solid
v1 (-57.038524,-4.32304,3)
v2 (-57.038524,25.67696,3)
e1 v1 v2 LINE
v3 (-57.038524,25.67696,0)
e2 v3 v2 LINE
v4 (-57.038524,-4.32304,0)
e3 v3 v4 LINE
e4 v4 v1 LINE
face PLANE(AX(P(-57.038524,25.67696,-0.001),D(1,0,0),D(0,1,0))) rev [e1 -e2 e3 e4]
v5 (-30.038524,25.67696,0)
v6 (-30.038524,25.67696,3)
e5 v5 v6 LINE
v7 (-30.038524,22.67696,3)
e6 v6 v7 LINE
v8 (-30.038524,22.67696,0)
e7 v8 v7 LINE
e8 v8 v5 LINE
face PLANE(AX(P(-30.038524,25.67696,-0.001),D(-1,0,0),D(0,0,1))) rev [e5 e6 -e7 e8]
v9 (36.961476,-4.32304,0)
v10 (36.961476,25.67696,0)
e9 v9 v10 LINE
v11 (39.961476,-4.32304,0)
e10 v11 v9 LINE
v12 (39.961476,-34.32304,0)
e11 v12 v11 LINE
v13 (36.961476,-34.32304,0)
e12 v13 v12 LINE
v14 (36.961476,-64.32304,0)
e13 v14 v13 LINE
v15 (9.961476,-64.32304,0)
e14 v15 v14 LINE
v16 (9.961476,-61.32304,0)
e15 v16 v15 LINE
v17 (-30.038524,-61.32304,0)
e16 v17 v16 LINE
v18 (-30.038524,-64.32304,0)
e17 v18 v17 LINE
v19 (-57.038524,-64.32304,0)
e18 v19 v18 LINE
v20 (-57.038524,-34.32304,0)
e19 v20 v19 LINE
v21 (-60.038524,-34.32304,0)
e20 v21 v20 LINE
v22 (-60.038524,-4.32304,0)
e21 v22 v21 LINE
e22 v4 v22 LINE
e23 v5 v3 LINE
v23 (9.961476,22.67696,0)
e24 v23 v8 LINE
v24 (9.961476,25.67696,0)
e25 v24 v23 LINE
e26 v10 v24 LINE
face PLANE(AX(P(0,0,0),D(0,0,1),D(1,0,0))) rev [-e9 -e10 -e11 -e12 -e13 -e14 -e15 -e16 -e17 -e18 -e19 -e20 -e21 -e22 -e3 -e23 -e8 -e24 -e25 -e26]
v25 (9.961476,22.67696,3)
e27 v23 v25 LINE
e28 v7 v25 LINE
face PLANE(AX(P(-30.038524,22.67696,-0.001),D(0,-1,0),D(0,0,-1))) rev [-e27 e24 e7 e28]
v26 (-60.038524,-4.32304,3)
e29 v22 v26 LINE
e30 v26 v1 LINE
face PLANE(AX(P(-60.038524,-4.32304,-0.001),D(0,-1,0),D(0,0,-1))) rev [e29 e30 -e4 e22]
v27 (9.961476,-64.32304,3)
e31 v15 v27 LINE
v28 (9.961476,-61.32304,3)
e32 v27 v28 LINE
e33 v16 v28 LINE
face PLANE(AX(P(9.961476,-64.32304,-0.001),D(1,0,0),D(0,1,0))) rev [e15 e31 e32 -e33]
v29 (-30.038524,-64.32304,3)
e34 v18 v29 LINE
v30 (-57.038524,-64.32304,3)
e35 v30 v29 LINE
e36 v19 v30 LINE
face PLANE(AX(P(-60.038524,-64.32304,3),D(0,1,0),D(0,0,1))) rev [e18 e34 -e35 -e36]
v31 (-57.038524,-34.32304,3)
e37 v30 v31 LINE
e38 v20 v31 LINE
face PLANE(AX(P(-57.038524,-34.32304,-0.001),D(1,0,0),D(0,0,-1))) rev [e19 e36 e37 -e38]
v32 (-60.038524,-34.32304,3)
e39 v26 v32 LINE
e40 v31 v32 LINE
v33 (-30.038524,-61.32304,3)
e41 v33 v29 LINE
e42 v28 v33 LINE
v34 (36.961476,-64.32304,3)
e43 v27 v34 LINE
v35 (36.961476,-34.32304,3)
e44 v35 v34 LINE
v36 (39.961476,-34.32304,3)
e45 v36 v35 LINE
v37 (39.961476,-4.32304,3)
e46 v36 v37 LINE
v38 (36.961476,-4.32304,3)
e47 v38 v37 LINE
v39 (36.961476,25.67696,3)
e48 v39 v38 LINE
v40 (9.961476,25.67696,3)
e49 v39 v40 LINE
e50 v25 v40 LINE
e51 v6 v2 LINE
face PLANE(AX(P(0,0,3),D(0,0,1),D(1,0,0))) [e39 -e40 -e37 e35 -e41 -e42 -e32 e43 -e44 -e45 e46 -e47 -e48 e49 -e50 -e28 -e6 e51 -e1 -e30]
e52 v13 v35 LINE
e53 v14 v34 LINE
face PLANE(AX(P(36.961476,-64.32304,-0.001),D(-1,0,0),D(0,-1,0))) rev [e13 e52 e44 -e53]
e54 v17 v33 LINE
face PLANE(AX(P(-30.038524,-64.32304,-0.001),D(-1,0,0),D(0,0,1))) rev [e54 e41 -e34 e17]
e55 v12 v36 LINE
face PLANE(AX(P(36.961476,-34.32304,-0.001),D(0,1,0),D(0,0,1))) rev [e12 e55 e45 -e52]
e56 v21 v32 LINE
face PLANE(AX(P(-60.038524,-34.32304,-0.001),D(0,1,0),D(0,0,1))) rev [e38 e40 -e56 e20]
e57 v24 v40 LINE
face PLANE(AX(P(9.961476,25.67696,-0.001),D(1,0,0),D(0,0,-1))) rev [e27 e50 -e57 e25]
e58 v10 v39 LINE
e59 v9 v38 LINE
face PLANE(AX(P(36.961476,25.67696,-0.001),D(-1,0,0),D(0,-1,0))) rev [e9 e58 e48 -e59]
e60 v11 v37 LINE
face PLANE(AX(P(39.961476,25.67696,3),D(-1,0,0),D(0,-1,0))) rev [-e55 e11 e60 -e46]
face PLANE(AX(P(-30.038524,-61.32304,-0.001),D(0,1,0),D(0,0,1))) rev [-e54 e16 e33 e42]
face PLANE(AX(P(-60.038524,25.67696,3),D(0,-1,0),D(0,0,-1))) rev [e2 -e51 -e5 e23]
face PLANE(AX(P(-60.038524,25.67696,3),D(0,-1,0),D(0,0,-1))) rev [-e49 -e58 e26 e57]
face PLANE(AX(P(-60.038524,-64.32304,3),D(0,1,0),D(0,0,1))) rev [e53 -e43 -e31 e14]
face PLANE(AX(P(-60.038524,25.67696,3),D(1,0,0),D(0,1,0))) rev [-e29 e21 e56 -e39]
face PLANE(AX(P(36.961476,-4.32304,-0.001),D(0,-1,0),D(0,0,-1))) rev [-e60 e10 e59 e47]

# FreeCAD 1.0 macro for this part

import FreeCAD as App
import Part
import Sketcher

doc = App.newDocument("Part")
body = doc.addObject("PartDesign::Body", "Body")

# Sketch on XY plane
sketch1 = doc.addObject("Sketcher::SketchObject", "Sketch")
body.addObject(sketch1)
sketch1.AttachmentSupport = (doc.XY_Plane, [""])
sketch1.MapMode = "FlatFace"
sketch1.addGeometry([
    Part.LineSegment(App.Vector(-60, 26, 0), App.Vector(-60, -64, 0)),
    Part.LineSegment(App.Vector(-60, -64, 0), App.Vector(40, -64, 0)),
    Part.LineSegment(App.Vector(40, -64, 0), App.Vector(40, 26, 0)),
    Part.LineSegment(App.Vector(40, 26, 0), App.Vector(-60, 26, 0)),
], False)
sketch1.addConstraint([
    Sketcher.Constraint("Coincident", 0, 2, 1, 1),
    Sketcher.Constraint("Coincident", 1, 2, 2, 1),
    Sketcher.Constraint("Coincident", 2, 2, 3, 1),
    Sketcher.Constraint("Coincident", 3, 2, 0, 1),
    Sketcher.Constraint("Vertical", 0),
    Sketcher.Constraint("Horizontal", 1),
    Sketcher.Constraint("Vertical", 2),
    Sketcher.Constraint("Horizontal", 3),
    Sketcher.Constraint("DistanceX", 1, 1, 1, 2, 100.0),
    Sketcher.Constraint("DistanceY", 0, 2, 0, 1, 90.0),
    Sketcher.Constraint("DistanceY", 0, 2, -1, 1, 64.32304),
    Sketcher.Constraint("DistanceX", 0, 2, -1, 1, 60.038524),
])
pad1 = doc.addObject("PartDesign::Pad", "Pad")
body.addObject(pad1)
pad1.Profile = sketch1
pad1.Length = 3

# Sketch on XY plane
sketch2 = doc.addObject("Sketcher::SketchObject", "Sketch001")
body.addObject(sketch2)
sketch2.AttachmentSupport = (doc.XY_Plane, [""])
sketch2.MapMode = "FlatFace"
sketch2.AttachmentOffset = App.Placement(App.Vector(0, 0, 3), App.Rotation())
sketch2.addGeometry([
    Part.LineSegment(App.Vector(-30, 25.7, 0), App.Vector(-30, 22.7, 0)),
    Part.LineSegment(App.Vector(-30, 22.7, 0), App.Vector(10, 22.7, 0)),
    Part.LineSegment(App.Vector(10, 22.7, 0), App.Vector(10, 25.7, 0)),
    Part.LineSegment(App.Vector(10, 25.7, 0), App.Vector(-30, 25.7, 0)),
], False)
sketch2.addConstraint([
    Sketcher.Constraint("Coincident", 0, 2, 1, 1),
    Sketcher.Constraint("Coincident", 1, 2, 2, 1),
    Sketcher.Constraint("Coincident", 2, 2, 3, 1),
    Sketcher.Constraint("Coincident", 3, 2, 0, 1),
    Sketcher.Constraint("Vertical", 0),
    Sketcher.Constraint("Horizontal", 1),
    Sketcher.Constraint("Vertical", 2),
    Sketcher.Constraint("Horizontal", 3),
    Sketcher.Constraint("DistanceX", 1, 1, 1, 2, 40.0),
    Sketcher.Constraint("DistanceY", 0, 2, 0, 1, 3.0),
    Sketcher.Constraint("DistanceY", -1, 1, 0, 2, 22.67696),
    Sketcher.Constraint("DistanceX", 0, 2, -1, 1, 30.038524),
])
pocket1 = doc.addObject("PartDesign::Pocket", "Pocket")
body.addObject(pocket1)
pocket1.Profile = sketch2
pocket1.Type = "UpToFirst"

# Sketch on XY plane
sketch3 = doc.addObject("Sketcher::SketchObject", "Sketch002")
body.addObject(sketch3)
sketch3.AttachmentSupport = (doc.XY_Plane, [""])
sketch3.MapMode = "FlatFace"
sketch3.AttachmentOffset = App.Placement(App.Vector(0, 0, 3), App.Rotation())
sketch3.addGeometry([
    Part.LineSegment(App.Vector(-60, 25.7, 0), App.Vector(-60, -4.3, 0)),
    Part.LineSegment(App.Vector(-60, -4.3, 0), App.Vector(-57, -4.3, 0)),
    Part.LineSegment(App.Vector(-57, -4.3, 0), App.Vector(-57, 25.7, 0)),
    Part.LineSegment(App.Vector(-57, 25.7, 0), App.Vector(-60, 25.7, 0)),
], False)
sketch3.addConstraint([
    Sketcher.Constraint("Coincident", 0, 2, 1, 1),
    Sketcher.Constraint("Coincident", 1, 2, 2, 1),
    Sketcher.Constraint("Coincident", 2, 2, 3, 1),
    Sketcher.Constraint("Coincident", 3, 2, 0, 1),
    Sketcher.Constraint("Vertical", 0),
    Sketcher.Constraint("Horizontal", 1),
    Sketcher.Constraint("Vertical", 2),
    Sketcher.Constraint("Horizontal", 3),
    Sketcher.Constraint("DistanceX", 1, 1, 1, 2, 3.0),
    Sketcher.Constraint("DistanceY", 0, 2, 0, 1, 30.0),
    Sketcher.Constraint("DistanceY", 0, 2, -1, 1, 4.32304),
    Sketcher.Constraint("DistanceX", 0, 2, -1, 1, 60.038524),
])
pocket2 = doc.addObject("PartDesign::Pocket", "Pocket001")
body.addObject(pocket2)
pocket2.Profile = sketch3
pocket2.Type = "UpToFirst"

# Sketch on XY plane
sketch4 = doc.addObject("Sketcher::SketchObject", "Sketch003")
body.addObject(sketch4)
sketch4.AttachmentSupport = (doc.XY_Plane, [""])
sketch4.MapMode = "FlatFace"
sketch4.AttachmentOffset = App.Placement(App.Vector(0, 0, 3), App.Rotation())
sketch4.addGeometry([
    Part.LineSegment(App.Vector(-60, -34.3, 0), App.Vector(-60, -64.3, 0)),
    Part.LineSegment(App.Vector(-60, -64.3, 0), App.Vector(-57, -64.3, 0)),
    Part.LineSegment(App.Vector(-57, -64.3, 0), App.Vector(-57, -34.3, 0)),
    Part.LineSegment(App.Vector(-57, -34.3, 0), App.Vector(-60, -34.3, 0)),
], False)
sketch4.addConstraint([
    Sketcher.Constraint("Coincident", 0, 2, 1, 1),
    Sketcher.Constraint("Coincident", 1, 2, 2, 1),
    Sketcher.Constraint("Coincident", 2, 2, 3, 1),
    Sketcher.Constraint("Coincident", 3, 2, 0, 1),
    Sketcher.Constraint("Vertical", 0),
    Sketcher.Constraint("Horizontal", 1),
    Sketcher.Constraint("Vertical", 2),
    Sketcher.Constraint("Horizontal", 3),
    Sketcher.Constraint("DistanceX", 1, 1, 1, 2, 3.0),
    Sketcher.Constraint("DistanceY", 0, 2, 0, 1, 30.0),
    Sketcher.Constraint("DistanceY", 0, 2, -1, 1, 64.32304),
    Sketcher.Constraint("DistanceX", 0, 2, -1, 1, 60.038524),
])
pocket3 = doc.addObject("PartDesign::Pocket", "Pocket002")
body.addObject(pocket3)
pocket3.Profile = sketch4
pocket3.Type = "UpToFirst"

# Sketch on XY plane
sketch5 = doc.addObject("Sketcher::SketchObject", "Sketch004")
body.addObject(sketch5)
sketch5.AttachmentSupport = (doc.XY_Plane, [""])
sketch5.MapMode = "FlatFace"
sketch5.AttachmentOffset = App.Placement(App.Vector(0, 0, 3), App.Rotation())
sketch5.addGeometry([
    Part.LineSegment(App.Vector(-30, -61.3, 0), App.Vector(-30, -64.3, 0)),
    Part.LineSegment(App.Vector(-30, -64.3, 0), App.Vector(10, -64.3, 0)),
    Part.LineSegment(App.Vector(10, -64.3, 0), App.Vector(10, -61.3, 0)),
    Part.LineSegment(App.Vector(10, -61.3, 0), App.Vector(-30, -61.3, 0)),
], False)
sketch5.addConstraint([
    Sketcher.Constraint("Coincident", 0, 2, 1, 1),
    Sketcher.Constraint("Coincident", 1, 2, 2, 1),
    Sketcher.Constraint("Coincident", 2, 2, 3, 1),
    Sketcher.Constraint("Coincident", 3, 2, 0, 1),
    Sketcher.Constraint("Vertical", 0),
    Sketcher.Constraint("Horizontal", 1),
    Sketcher.Constraint("Vertical", 2),
    Sketcher.Constraint("Horizontal", 3),
    Sketcher.Constraint("DistanceX", 1, 1, 1, 2, 40.0),
    Sketcher.Constraint("DistanceY", 0, 2, 0, 1, 3.0),
    Sketcher.Constraint("DistanceY", 0, 2, -1, 1, 64.32304),
    Sketcher.Constraint("DistanceX", 0, 2, -1, 1, 30.038524),
])
pocket4 = doc.addObject("PartDesign::Pocket", "Pocket003")
body.addObject(pocket4)
pocket4.Profile = sketch5
pocket4.Type = "UpToFirst"

# Sketch on XY plane
sketch6 = doc.addObject("Sketcher::SketchObject", "Sketch005")
body.addObject(sketch6)
sketch6.AttachmentSupport = (doc.XY_Plane, [""])
sketch6.MapMode = "FlatFace"
sketch6.AttachmentOffset = App.Placement(App.Vector(0, 0, 3), App.Rotation())
sketch6.addGeometry([
    Part.LineSegment(App.Vector(37, -34.3, 0), App.Vector(37, -64.3, 0)),
    Part.LineSegment(App.Vector(37, -64.3, 0), App.Vector(40, -64.3, 0)),
    Part.LineSegment(App.Vector(40, -64.3, 0), App.Vector(40, -34.3, 0)),
    Part.LineSegment(App.Vector(40, -34.3, 0), App.Vector(37, -34.3, 0)),
], False)
sketch6.addConstraint([
    Sketcher.Constraint("Coincident", 0, 2, 1, 1),
    Sketcher.Constraint("Coincident", 1, 2, 2, 1),
    Sketcher.Constraint("Coincident", 2, 2, 3, 1),
    Sketcher.Constraint("Coincident", 3, 2, 0, 1),
    Sketcher.Constraint("Vertical", 0),
    Sketcher.Constraint("Horizontal", 1),
    Sketcher.Constraint("Vertical", 2),
    Sketcher.Constraint("Horizontal", 3),
    Sketcher.Constraint("DistanceX", 1, 1, 1, 2, 3.0),
    Sketcher.Constraint("DistanceY", 0, 2, 0, 1, 30.0),
    Sketcher.Constraint("DistanceY", 0, 2, -1, 1, 64.32304),
    Sketcher.Constraint("DistanceX", -1, 1, 0, 2, 36.961476),
])
pocket5 = doc.addObject("PartDesign::Pocket", "Pocket004")
body.addObject(pocket5)
pocket5.Profile = sketch6
pocket5.Type = "UpToFirst"

# Sketch on XY plane
sketch7 = doc.addObject("Sketcher::SketchObject", "Sketch006")
body.addObject(sketch7)
sketch7.AttachmentSupport = (doc.XY_Plane, [""])
sketch7.MapMode = "FlatFace"
sketch7.AttachmentOffset = App.Placement(App.Vector(0, 0, 3), App.Rotation())
sketch7.addGeometry([
    Part.LineSegment(App.Vector(37, 25.7, 0), App.Vector(37, -4.3, 0)),
    Part.LineSegment(App.Vector(37, -4.3, 0), App.Vector(40, -4.3, 0)),
    Part.LineSegment(App.Vector(40, -4.3, 0), App.Vector(40, 25.7, 0)),
    Part.LineSegment(App.Vector(40, 25.7, 0), App.Vector(37, 25.7, 0)),
], False)
sketch7.addConstraint([
    Sketcher.Constraint("Coincident", 0, 2, 1, 1),
    Sketcher.Constraint("Coincident", 1, 2, 2, 1),
    Sketcher.Constraint("Coincident", 2, 2, 3, 1),
    Sketcher.Constraint("Coincident", 3, 2, 0, 1),
    Sketcher.Constraint("Vertical", 0),
    Sketcher.Constraint("Horizontal", 1),
    Sketcher.Constraint("Vertical", 2),
    Sketcher.Constraint("Horizontal", 3),
    Sketcher.Constraint("DistanceX", 1, 1, 1, 2, 3.0),
    Sketcher.Constraint("DistanceY", 0, 2, 0, 1, 30.0),
    Sketcher.Constraint("DistanceY", 0, 2, -1, 1, 4.32304),
    Sketcher.Constraint("DistanceX", -1, 1, 0, 2, 36.961476),
])
pocket6 = doc.addObject("PartDesign::Pocket", "Pocket005")
body.addObject(pocket6)
pocket6.Profile = sketch7
pocket6.Type = "UpToFirst"

doc.recompute()
